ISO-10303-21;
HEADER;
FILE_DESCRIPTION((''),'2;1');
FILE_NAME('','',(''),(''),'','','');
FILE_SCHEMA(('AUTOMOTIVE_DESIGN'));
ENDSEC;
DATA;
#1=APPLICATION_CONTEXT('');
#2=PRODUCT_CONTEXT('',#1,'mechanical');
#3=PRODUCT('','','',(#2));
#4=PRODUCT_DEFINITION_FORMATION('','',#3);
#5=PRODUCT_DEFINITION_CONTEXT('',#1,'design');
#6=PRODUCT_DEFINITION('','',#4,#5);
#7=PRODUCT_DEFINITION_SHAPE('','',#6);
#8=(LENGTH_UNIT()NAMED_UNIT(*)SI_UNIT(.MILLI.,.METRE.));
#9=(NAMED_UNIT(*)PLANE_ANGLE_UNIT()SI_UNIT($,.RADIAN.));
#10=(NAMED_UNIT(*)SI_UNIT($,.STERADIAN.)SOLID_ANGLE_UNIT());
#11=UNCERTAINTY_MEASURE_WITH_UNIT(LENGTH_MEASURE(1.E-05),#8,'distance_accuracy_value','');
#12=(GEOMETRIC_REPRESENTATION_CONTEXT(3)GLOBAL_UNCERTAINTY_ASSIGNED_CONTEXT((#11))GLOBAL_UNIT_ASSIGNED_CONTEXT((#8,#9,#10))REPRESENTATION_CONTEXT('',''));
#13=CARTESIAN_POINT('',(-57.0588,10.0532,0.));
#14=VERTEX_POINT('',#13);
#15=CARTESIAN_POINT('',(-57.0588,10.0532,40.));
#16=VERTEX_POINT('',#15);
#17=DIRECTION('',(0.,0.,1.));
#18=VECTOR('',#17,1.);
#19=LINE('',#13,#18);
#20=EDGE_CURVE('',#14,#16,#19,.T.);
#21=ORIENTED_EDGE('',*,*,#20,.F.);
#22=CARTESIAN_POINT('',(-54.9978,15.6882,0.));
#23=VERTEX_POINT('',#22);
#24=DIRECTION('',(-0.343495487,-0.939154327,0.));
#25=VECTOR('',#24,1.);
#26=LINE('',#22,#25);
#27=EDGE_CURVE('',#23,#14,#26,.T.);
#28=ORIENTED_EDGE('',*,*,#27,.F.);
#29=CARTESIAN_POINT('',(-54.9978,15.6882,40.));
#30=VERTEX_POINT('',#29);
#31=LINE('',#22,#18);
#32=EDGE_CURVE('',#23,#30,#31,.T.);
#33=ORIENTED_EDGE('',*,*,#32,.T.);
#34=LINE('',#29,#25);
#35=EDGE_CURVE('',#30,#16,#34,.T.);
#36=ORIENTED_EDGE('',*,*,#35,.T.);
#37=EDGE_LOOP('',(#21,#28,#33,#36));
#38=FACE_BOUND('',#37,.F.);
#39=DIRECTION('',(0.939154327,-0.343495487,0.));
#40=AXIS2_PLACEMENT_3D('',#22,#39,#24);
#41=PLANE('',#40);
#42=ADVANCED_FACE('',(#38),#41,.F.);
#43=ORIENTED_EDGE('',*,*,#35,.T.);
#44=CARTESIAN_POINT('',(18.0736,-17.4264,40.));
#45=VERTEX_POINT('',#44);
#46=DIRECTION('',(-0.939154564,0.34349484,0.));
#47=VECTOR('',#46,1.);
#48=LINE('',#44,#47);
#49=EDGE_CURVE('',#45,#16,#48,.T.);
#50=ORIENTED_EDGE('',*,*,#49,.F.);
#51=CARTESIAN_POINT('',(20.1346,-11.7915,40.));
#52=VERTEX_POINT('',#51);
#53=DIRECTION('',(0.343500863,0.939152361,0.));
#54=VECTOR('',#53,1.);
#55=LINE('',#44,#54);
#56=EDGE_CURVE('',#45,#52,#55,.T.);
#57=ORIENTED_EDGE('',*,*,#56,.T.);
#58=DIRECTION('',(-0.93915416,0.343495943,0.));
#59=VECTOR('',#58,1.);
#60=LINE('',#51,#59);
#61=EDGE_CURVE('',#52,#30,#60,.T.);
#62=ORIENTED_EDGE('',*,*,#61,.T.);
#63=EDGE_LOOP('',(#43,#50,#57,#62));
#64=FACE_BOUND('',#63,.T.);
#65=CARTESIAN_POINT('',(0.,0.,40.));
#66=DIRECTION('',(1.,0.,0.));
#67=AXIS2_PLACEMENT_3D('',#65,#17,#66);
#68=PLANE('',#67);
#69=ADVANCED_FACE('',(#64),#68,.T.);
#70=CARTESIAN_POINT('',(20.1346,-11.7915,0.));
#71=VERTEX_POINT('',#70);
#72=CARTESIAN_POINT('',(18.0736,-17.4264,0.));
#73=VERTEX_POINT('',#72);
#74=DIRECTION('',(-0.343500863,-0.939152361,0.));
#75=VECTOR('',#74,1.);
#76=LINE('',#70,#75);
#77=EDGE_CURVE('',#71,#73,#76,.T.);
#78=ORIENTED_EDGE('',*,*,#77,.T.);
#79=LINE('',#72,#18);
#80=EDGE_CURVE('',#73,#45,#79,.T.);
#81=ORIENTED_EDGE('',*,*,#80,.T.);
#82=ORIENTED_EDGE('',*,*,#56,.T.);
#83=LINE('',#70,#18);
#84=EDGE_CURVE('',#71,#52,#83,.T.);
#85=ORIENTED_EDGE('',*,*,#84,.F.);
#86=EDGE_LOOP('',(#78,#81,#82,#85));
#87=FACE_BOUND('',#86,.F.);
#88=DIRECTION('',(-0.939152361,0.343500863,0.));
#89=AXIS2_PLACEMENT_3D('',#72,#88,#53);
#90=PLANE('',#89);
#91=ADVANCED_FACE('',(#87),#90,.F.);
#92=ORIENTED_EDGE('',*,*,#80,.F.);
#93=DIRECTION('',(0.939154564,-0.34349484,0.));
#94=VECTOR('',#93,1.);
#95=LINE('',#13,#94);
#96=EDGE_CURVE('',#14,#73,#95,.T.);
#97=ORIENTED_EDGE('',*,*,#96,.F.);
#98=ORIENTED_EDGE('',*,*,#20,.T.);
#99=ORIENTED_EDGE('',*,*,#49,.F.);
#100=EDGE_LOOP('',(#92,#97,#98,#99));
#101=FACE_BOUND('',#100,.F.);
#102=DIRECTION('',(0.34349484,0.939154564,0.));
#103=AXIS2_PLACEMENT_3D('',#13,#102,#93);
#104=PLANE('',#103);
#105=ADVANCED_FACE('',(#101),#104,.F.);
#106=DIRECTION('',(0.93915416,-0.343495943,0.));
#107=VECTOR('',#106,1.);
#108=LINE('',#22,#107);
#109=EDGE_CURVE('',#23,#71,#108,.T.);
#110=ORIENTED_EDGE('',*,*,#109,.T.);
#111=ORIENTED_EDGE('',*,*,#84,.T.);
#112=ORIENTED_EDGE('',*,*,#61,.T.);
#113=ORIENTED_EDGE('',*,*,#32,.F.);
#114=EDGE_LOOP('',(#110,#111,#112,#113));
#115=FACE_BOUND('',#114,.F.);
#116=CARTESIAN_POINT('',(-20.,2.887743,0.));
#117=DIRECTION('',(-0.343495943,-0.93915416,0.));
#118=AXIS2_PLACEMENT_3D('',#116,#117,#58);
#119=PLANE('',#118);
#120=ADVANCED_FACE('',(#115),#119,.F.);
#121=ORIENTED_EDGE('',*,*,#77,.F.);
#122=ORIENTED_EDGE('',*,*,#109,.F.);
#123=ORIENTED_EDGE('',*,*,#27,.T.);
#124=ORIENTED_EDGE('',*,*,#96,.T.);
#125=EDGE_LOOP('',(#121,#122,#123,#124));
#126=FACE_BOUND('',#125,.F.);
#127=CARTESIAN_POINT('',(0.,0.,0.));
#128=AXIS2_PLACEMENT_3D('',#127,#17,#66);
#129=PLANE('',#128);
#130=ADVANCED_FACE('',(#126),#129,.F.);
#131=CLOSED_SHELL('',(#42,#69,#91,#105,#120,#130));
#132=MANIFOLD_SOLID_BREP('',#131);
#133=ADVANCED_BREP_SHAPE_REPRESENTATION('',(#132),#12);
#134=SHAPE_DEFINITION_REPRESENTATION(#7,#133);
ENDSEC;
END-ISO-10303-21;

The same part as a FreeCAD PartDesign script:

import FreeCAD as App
import Part
import Sketcher

V = App.Vector
Q = App.Units.Quantity


def add_polygon(sketch, points):
    """Adds a closed chain of lines whose ends are joined by coincident constraints."""
    first, n = sketch.GeometryCount, len(points)
    for a, b in zip(points, points[1:] + points[:1]):
        sketch.addGeometry(Part.LineSegment(App.Vector(*a, 0), App.Vector(*b, 0)), False)
    for i in range(n):
        sketch.addConstraint(Sketcher.Constraint("Coincident", first + i, 2, first + (i + 1) % n, 1))

doc = App.newDocument("Part")
body = doc.addObject("PartDesign::Body", "Body")

# Sketch on XY plane
sketch1 = body.newObject("Sketcher::SketchObject", "Sketch")
sketch1.AttachmentSupport = (doc.getObject("XY_Plane"), [""])
sketch1.MapMode = "FlatFace"
add_polygon(sketch1, [(-57, 10), (18, -17), (20, -12), (-55, 16)])  # lines 0-3
sketch1.addConstraint([
    Sketcher.Constraint("Perpendicular", 0, 1),
    Sketcher.Constraint("Perpendicular", 1, 2),
    Sketcher.Constraint("Perpendicular", 2, 3),
    Sketcher.Constraint("Distance", 0, 80.0),
    Sketcher.Constraint("Distance", 1, 6.0),
    Sketcher.Constraint("Angle", 0, Q("-20.09 deg")),
    Sketcher.Constraint("DistanceX", -1, 1, 0, 2, 18.0736),
    Sketcher.Constraint("DistanceY", 0, 2, -1, 1, 17.4264),
])
pad1 = body.newObject("PartDesign::Pad", "Pad")
pad1.Profile = sketch1
pad1.Length = 40

doc.recompute()
